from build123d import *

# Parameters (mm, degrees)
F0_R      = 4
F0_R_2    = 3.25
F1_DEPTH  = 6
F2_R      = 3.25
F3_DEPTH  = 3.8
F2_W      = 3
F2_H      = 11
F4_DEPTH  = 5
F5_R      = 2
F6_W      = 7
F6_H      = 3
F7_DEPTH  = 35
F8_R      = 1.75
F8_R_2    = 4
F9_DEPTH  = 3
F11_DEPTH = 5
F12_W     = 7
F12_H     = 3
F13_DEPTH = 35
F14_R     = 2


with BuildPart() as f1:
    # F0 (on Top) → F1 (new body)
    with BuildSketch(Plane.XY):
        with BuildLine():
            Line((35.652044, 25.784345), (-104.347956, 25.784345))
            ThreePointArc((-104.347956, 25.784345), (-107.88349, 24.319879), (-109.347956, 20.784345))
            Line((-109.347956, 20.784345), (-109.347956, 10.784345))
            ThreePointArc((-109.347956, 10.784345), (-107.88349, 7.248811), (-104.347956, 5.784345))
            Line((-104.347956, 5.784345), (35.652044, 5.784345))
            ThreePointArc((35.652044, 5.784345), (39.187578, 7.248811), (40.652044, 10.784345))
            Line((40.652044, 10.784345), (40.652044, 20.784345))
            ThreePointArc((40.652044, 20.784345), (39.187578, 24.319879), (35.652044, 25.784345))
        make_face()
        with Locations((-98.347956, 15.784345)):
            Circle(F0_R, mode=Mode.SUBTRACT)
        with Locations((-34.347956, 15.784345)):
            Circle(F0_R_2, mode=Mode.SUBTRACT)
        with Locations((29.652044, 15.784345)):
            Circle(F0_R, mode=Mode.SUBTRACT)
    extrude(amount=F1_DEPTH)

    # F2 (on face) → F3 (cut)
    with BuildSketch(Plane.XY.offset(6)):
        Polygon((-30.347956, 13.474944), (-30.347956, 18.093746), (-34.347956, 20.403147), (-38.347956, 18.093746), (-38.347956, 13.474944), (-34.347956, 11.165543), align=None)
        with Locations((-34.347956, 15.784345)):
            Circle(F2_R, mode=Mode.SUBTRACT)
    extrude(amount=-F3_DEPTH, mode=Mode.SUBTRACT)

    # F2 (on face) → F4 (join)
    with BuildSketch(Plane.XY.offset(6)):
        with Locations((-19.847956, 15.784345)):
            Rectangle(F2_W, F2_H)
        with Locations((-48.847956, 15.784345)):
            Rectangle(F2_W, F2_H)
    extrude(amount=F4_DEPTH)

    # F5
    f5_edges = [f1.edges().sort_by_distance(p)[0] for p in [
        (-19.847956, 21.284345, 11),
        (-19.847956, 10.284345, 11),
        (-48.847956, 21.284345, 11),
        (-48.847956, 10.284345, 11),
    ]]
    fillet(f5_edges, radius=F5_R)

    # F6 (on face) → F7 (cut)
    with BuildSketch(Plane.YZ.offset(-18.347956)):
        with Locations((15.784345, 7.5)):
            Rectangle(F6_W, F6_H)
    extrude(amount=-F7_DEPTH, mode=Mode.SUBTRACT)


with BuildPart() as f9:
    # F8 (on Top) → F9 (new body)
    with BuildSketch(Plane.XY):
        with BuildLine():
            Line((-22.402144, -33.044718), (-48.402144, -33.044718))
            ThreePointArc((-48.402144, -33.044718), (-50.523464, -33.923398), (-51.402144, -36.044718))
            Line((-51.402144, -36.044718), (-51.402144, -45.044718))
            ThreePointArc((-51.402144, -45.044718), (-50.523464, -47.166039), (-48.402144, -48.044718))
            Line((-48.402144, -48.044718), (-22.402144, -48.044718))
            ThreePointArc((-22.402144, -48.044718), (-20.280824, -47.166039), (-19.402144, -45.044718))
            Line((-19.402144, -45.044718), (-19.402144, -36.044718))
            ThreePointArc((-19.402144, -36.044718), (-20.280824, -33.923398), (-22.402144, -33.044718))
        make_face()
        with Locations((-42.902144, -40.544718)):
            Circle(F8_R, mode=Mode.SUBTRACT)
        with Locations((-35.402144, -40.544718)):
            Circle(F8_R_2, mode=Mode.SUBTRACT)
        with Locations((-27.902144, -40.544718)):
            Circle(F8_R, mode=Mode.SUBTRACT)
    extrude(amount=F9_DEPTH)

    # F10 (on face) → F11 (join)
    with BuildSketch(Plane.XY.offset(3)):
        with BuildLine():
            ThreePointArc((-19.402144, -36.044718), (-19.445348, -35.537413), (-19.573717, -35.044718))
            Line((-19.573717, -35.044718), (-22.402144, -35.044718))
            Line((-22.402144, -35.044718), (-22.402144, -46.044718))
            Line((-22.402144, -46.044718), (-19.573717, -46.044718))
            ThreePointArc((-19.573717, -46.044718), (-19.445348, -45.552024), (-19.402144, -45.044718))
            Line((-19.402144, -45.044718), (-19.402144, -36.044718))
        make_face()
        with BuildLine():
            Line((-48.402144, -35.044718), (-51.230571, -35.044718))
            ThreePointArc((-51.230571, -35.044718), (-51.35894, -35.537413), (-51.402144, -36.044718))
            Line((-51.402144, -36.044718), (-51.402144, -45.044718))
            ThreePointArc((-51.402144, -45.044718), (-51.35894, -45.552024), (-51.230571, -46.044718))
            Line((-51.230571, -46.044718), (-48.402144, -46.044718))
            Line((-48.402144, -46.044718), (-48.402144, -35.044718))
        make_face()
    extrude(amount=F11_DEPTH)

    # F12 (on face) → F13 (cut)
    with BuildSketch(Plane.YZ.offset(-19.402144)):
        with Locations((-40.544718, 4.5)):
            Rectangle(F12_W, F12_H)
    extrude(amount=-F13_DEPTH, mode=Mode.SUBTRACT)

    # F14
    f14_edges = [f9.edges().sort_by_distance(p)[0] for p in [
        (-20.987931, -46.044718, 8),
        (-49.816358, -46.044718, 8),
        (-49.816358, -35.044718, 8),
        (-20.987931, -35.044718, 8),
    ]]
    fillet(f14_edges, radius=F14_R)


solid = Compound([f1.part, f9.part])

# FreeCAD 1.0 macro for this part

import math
import FreeCAD as App
import Part
import Sketcher
Q = App.Units.Quantity


def edges_at(feature, points):
    """Names of the edges that pass closest to the given points."""
    edges = feature.Shape.Edges
    near = lambda p: min(range(len(edges)), key=lambda i: edges[i].distToShape(Part.Vertex(*p))[0])
    return sorted({f"Edge{near(p) + 1}" for p in points})

doc = App.newDocument("Part")
body = doc.addObject("PartDesign::Body", "Body")

sketch1 = body.newObject("Sketcher::SketchObject", "Sketch")
sketch1.AttachmentSupport = (doc.getObject("XY_Plane"), [""])
sketch1.MapMode = "FlatFace"
sketch1.addGeometry(Part.LineSegment(App.Vector(35.7, 25.8, 0), App.Vector(-104.3, 25.8, 0)), False)
sketch1.addGeometry(Part.ArcOfCircle(Part.Circle(App.Vector(-104.3, 20.8, 0), App.Vector(0, 0, 1), 5), math.radians(90), math.radians(180)), False)
sketch1.addGeometry(Part.LineSegment(App.Vector(-109.3, 20.8, 0), App.Vector(-109.3, 10.8, 0)), False)
sketch1.addGeometry(Part.ArcOfCircle(Part.Circle(App.Vector(-104.3, 10.8, 0), App.Vector(0, 0, 1), 5), math.radians(180), math.radians(270)), False)
sketch1.addGeometry(Part.LineSegment(App.Vector(-104.3, 5.8, 0), App.Vector(35.7, 5.8, 0)), False)
sketch1.addGeometry(Part.ArcOfCircle(Part.Circle(App.Vector(35.7, 10.8, 0), App.Vector(0, 0, 1), 5), math.radians(-90), math.radians(0)), False)
sketch1.addGeometry(Part.LineSegment(App.Vector(40.7, 10.8, 0), App.Vector(40.7, 20.8, 0)), False)
sketch1.addGeometry(Part.ArcOfCircle(Part.Circle(App.Vector(35.7, 20.8, 0), App.Vector(0, 0, 1), 5), math.radians(0), math.radians(90)), False)
sketch1.addGeometry(Part.Circle(App.Vector(-98.3, 15.8, 0), App.Vector(0, 0, 1), 4), False)
sketch1.addGeometry(Part.Circle(App.Vector(-34.3, 15.8, 0), App.Vector(0, 0, 1), 3.2), False)
sketch1.addGeometry(Part.Circle(App.Vector(29.7, 15.8, 0), App.Vector(0, 0, 1), 4), False)
sketch1.addConstraint(Sketcher.Constraint("Tangent", 0, 2, 1, 1))
sketch1.addConstraint(Sketcher.Constraint("Tangent", 1, 2, 2, 1))
sketch1.addConstraint(Sketcher.Constraint("Tangent", 2, 2, 3, 1))
sketch1.addConstraint(Sketcher.Constraint("Tangent", 3, 2, 4, 1))
sketch1.addConstraint(Sketcher.Constraint("Tangent", 4, 2, 5, 1))
sketch1.addConstraint(Sketcher.Constraint("Tangent", 5, 2, 6, 1))
sketch1.addConstraint(Sketcher.Constraint("Tangent", 6, 2, 7, 1))
sketch1.addConstraint(Sketcher.Constraint("Tangent", 7, 2, 0, 1))
sketch1.addConstraint(Sketcher.Constraint("Horizontal", 0))
sketch1.addConstraint(Sketcher.Constraint("Vertical", 2))
sketch1.addConstraint(Sketcher.Constraint("Horizontal", 4))
sketch1.addConstraint(Sketcher.Constraint("Vertical", 6))
sketch1.addConstraint(Sketcher.Constraint("Equal", 1, 3))
sketch1.addConstraint(Sketcher.Constraint("Equal", 3, 5))
sketch1.addConstraint(Sketcher.Constraint("Equal", 5, 7))
sketch1.addConstraint(Sketcher.Constraint("Equal", 8, 10))
sketch1.addConstraint(Sketcher.Constraint("Horizontal", 8, 3, 9, 3))
sketch1.addConstraint(Sketcher.Constraint("Horizontal", 9, 3, 10, 3))
sketch1.addConstraint(Sketcher.Constraint("Diameter", 8, 8.0))
sketch1.addConstraint(Sketcher.Constraint("Radius", 1, 5.0))
sketch1.addConstraint(Sketcher.Constraint("Diameter", 9, 6.5))
sketch1.addConstraint(Sketcher.Constraint("DistanceX", 0, 2, 0, 1, 140.0))
sketch1.addConstraint(Sketcher.Constraint("DistanceY", 2, 2, 2, 1, 10.0))
sketch1.addConstraint(Sketcher.Constraint("DistanceX", 1, 3, 8, 3, 6.0))
sketch1.addConstraint(Sketcher.Constraint("DistanceY", 8, 3, 1, 3, 5.0))
sketch1.addConstraint(Sketcher.Constraint("DistanceX", 8, 3, 9, 3, 64.0))
sketch1.addConstraint(Sketcher.Constraint("DistanceX", 10, 3, 5, 3, 6.0))
sketch1.addConstraint(Sketcher.Constraint("DistanceX", 1, 3, -1, 1, 104.347956))
sketch1.addConstraint(Sketcher.Constraint("DistanceY", -1, 1, 1, 3, 20.784345))
pad1 = body.newObject("PartDesign::Pad", "Pad")
pad1.Profile = sketch1
pad1.Length = 6

sketch2 = body.newObject("Sketcher::SketchObject", "Sketch001")
sketch2.AttachmentSupport = (doc.getObject("XY_Plane"), [""])
sketch2.MapMode = "FlatFace"
sketch2.AttachmentOffset = App.Placement(App.Vector(0, 0, 6), App.Rotation())
sketch2.addGeometry(Part.LineSegment(App.Vector(-30.3, 13.5, 0), App.Vector(-30.3, 18.1, 0)), False)
sketch2.addGeometry(Part.LineSegment(App.Vector(-30.3, 18.1, 0), App.Vector(-34.3, 20.4, 0)), False)
sketch2.addGeometry(Part.LineSegment(App.Vector(-34.3, 20.4, 0), App.Vector(-38.3, 18.1, 0)), False)
sketch2.addGeometry(Part.LineSegment(App.Vector(-38.3, 18.1, 0), App.Vector(-38.3, 13.5, 0)), False)
sketch2.addGeometry(Part.LineSegment(App.Vector(-38.3, 13.5, 0), App.Vector(-34.3, 11.2, 0)), False)
sketch2.addGeometry(Part.LineSegment(App.Vector(-34.3, 11.2, 0), App.Vector(-30.3, 13.5, 0)), False)
sketch2.addGeometry(Part.Circle(App.Vector(-34.3, 15.8, 0), App.Vector(0, 0, 1), 3.2), False)
sketch2.addConstraint(Sketcher.Constraint("Coincident", 0, 2, 1, 1))
sketch2.addConstraint(Sketcher.Constraint("Coincident", 1, 2, 2, 1))
sketch2.addConstraint(Sketcher.Constraint("Coincident", 2, 2, 3, 1))
sketch2.addConstraint(Sketcher.Constraint("Coincident", 3, 2, 4, 1))
sketch2.addConstraint(Sketcher.Constraint("Coincident", 4, 2, 5, 1))
sketch2.addConstraint(Sketcher.Constraint("Coincident", 5, 2, 0, 1))
sketch2.addConstraint(Sketcher.Constraint("Vertical", 0))
sketch2.addConstraint(Sketcher.Constraint("Vertical", 3))
sketch2.addConstraint(Sketcher.Constraint("Parallel", 1, 4))
sketch2.addConstraint(Sketcher.Constraint("Parallel", 2, 5))
sketch2.addConstraint(Sketcher.Constraint("Horizontal", 0, 2, 2, 2))
sketch2.addConstraint(Sketcher.Constraint("Horizontal", 3, 2, 5, 2))
sketch2.addConstraint(Sketcher.Constraint("Vertical", 6, 3, 1, 2))
sketch2.addConstraint(Sketcher.Constraint("Vertical", 1, 2, 4, 2))
sketch2.addConstraint(Sketcher.Constraint("Diameter", 6, 6.5))
sketch2.addConstraint(Sketcher.Constraint("Angle", 1, Q("150.000001 deg")))
sketch2.addConstraint(Sketcher.Constraint("DistanceX", 6, 3, 0, 2, 4.0))
sketch2.addConstraint(Sketcher.Constraint("DistanceY", 0, 1, 0, 2, 4.618802))
sketch2.addConstraint(Sketcher.Constraint("DistanceY", 6, 3, 0, 2, 2.309401))
sketch2.addConstraint(Sketcher.Constraint("DistanceX", 6, 3, -1, 1, 34.347956))
sketch2.addConstraint(Sketcher.Constraint("DistanceY", -1, 1, 6, 3, 15.784345))
pocket1 = body.newObject("PartDesign::Pocket", "Pocket")
pocket1.Profile = sketch2
pocket1.Length = 3.8

sketch3 = body.newObject("Sketcher::SketchObject", "Sketch002")
sketch3.AttachmentSupport = (doc.getObject("XY_Plane"), [""])
sketch3.MapMode = "FlatFace"
sketch3.AttachmentOffset = App.Placement(App.Vector(0, 0, 6), App.Rotation())
sketch3.addGeometry(Part.LineSegment(App.Vector(-21.3, 21.3, 0), App.Vector(-21.3, 10.3, 0)), False)
sketch3.addGeometry(Part.LineSegment(App.Vector(-21.3, 10.3, 0), App.Vector(-18.3, 10.3, 0)), False)
sketch3.addGeometry(Part.LineSegment(App.Vector(-18.3, 10.3, 0), App.Vector(-18.3, 21.3, 0)), False)
sketch3.addGeometry(Part.LineSegment(App.Vector(-18.3, 21.3, 0), App.Vector(-21.3, 21.3, 0)), False)
sketch3.addGeometry(Part.LineSegment(App.Vector(-50.3, 21.3, 0), App.Vector(-50.3, 10.3, 0)), False)
sketch3.addGeometry(Part.LineSegment(App.Vector(-50.3, 10.3, 0), App.Vector(-47.3, 10.3, 0)), False)
sketch3.addGeometry(Part.LineSegment(App.Vector(-47.3, 10.3, 0), App.Vector(-47.3, 21.3, 0)), False)
sketch3.addGeometry(Part.LineSegment(App.Vector(-47.3, 21.3, 0), App.Vector(-50.3, 21.3, 0)), False)
sketch3.addConstraint(Sketcher.Constraint("Coincident", 0, 2, 1, 1))
sketch3.addConstraint(Sketcher.Constraint("Coincident", 1, 2, 2, 1))
sketch3.addConstraint(Sketcher.Constraint("Coincident", 2, 2, 3, 1))
sketch3.addConstraint(Sketcher.Constraint("Coincident", 3, 2, 0, 1))
sketch3.addConstraint(Sketcher.Constraint("Coincident", 4, 2, 5, 1))
sketch3.addConstraint(Sketcher.Constraint("Coincident", 5, 2, 6, 1))
sketch3.addConstraint(Sketcher.Constraint("Coincident", 6, 2, 7, 1))
sketch3.addConstraint(Sketcher.Constraint("Coincident", 7, 2, 4, 1))
sketch3.addConstraint(Sketcher.Constraint("Vertical", 0))
sketch3.addConstraint(Sketcher.Constraint("Horizontal", 1))
sketch3.addConstraint(Sketcher.Constraint("Vertical", 2))
sketch3.addConstraint(Sketcher.Constraint("Horizontal", 3))
sketch3.addConstraint(Sketcher.Constraint("Vertical", 4))
sketch3.addConstraint(Sketcher.Constraint("Horizontal", 5))
sketch3.addConstraint(Sketcher.Constraint("Vertical", 6))
sketch3.addConstraint(Sketcher.Constraint("Horizontal", 7))
sketch3.addConstraint(Sketcher.Constraint("Horizontal", 1, 2, 4, 2))
sketch3.addConstraint(Sketcher.Constraint("Horizontal", 3, 2, 6, 2))
sketch3.addConstraint(Sketcher.Constraint("Equal", 3, 5))
sketch3.addConstraint(Sketcher.Constraint("DistanceX", 1, 1, 1, 2, 3.0))
sketch3.addConstraint(Sketcher.Constraint("DistanceY", 0, 2, 0, 1, 11.0))
sketch3.addConstraint(Sketcher.Constraint("DistanceX", 4, 2, 0, 2, 29.0))
sketch3.addConstraint(Sketcher.Constraint("DistanceX", 0, 2, -1, 1, 21.347956))
sketch3.addConstraint(Sketcher.Constraint("DistanceY", -1, 1, 0, 2, 10.284345))
pad2 = body.newObject("PartDesign::Pad", "Pad001")
pad2.Profile = sketch3
pad2.Length = 5
doc.recompute()

fillet = body.newObject("PartDesign::Fillet", "Fillet")
fillet.Base = (pad2, edges_at(pad2, [
    (-19.848, 21.284, 11),
    (-19.848, 10.284, 11),
    (-48.848, 21.284, 11),
    (-48.848, 10.284, 11),
]))
fillet.Radius = 2

sketch4 = body.newObject("Sketcher::SketchObject", "Sketch003")
sketch4.AttachmentSupport = (doc.getObject("YZ_Plane"), [""])
sketch4.MapMode = "FlatFace"
sketch4.AttachmentOffset = App.Placement(App.Vector(0, 0, -18.347956), App.Rotation())
sketch4.addGeometry(Part.LineSegment(App.Vector(12.3, 9, 0), App.Vector(12.3, 6, 0)), False)
sketch4.addGeometry(Part.LineSegment(App.Vector(12.3, 6, 0), App.Vector(19.3, 6, 0)), False)
sketch4.addGeometry(Part.LineSegment(App.Vector(19.3, 6, 0), App.Vector(19.3, 9, 0)), False)
sketch4.addGeometry(Part.LineSegment(App.Vector(19.3, 9, 0), App.Vector(12.3, 9, 0)), False)
sketch4.addConstraint(Sketcher.Constraint("Coincident", 0, 2, 1, 1))
sketch4.addConstraint(Sketcher.Constraint("Coincident", 1, 2, 2, 1))
sketch4.addConstraint(Sketcher.Constraint("Coincident", 2, 2, 3, 1))
sketch4.addConstraint(Sketcher.Constraint("Coincident", 3, 2, 0, 1))
sketch4.addConstraint(Sketcher.Constraint("Vertical", 0))
sketch4.addConstraint(Sketcher.Constraint("Horizontal", 1))
sketch4.addConstraint(Sketcher.Constraint("Vertical", 2))
sketch4.addConstraint(Sketcher.Constraint("Horizontal", 3))
sketch4.addConstraint(Sketcher.Constraint("DistanceX", 1, 1, 1, 2, 7.0))
sketch4.addConstraint(Sketcher.Constraint("DistanceY", 0, 2, 0, 1, 3.0))
sketch4.addConstraint(Sketcher.Constraint("DistanceY", -1, 1, 0, 2, 6.0))
sketch4.addConstraint(Sketcher.Constraint("DistanceX", -1, 1, 0, 2, 12.284345))
pocket2 = body.newObject("PartDesign::Pocket", "Pocket001")
pocket2.Profile = sketch4
pocket2.Length = 35
body2 = doc.addObject("PartDesign::Body", "Body001")

sketch5 = body2.newObject("Sketcher::SketchObject", "Sketch004")
sketch5.AttachmentSupport = (doc.getObject("XY_Plane001"), [""])
sketch5.MapMode = "FlatFace"
sketch5.addGeometry(Part.LineSegment(App.Vector(-22.4, -33, 0), App.Vector(-48.4, -33, 0)), False)
sketch5.addGeometry(Part.ArcOfCircle(Part.Circle(App.Vector(-48.4, -36, 0), App.Vector(0, 0, 1), 3), math.radians(90), math.radians(180)), False)
sketch5.addGeometry(Part.LineSegment(App.Vector(-51.4, -36, 0), App.Vector(-51.4, -45, 0)), False)
sketch5.addGeometry(Part.ArcOfCircle(Part.Circle(App.Vector(-48.4, -45, 0), App.Vector(0, 0, 1), 3), math.radians(180), math.radians(270)), False)
sketch5.addGeometry(Part.LineSegment(App.Vector(-48.4, -48, 0), App.Vector(-22.4, -48, 0)), False)
sketch5.addGeometry(Part.ArcOfCircle(Part.Circle(App.Vector(-22.4, -45, 0), App.Vector(0, 0, 1), 3), math.radians(-90), math.radians(0)), False)
sketch5.addGeometry(Part.LineSegment(App.Vector(-19.4, -45, 0), App.Vector(-19.4, -36, 0)), False)
sketch5.addGeometry(Part.ArcOfCircle(Part.Circle(App.Vector(-22.4, -36, 0), App.Vector(0, 0, 1), 3), math.radians(0), math.radians(90)), False)
sketch5.addGeometry(Part.Circle(App.Vector(-42.9, -40.5, 0), App.Vector(0, 0, 1), 1.8), False)
sketch5.addGeometry(Part.Circle(App.Vector(-35.4, -40.5, 0), App.Vector(0, 0, 1), 4), False)
sketch5.addGeometry(Part.Circle(App.Vector(-27.9, -40.5, 0), App.Vector(0, 0, 1), 1.8), False)
sketch5.addConstraint(Sketcher.Constraint("Tangent", 0, 2, 1, 1))
sketch5.addConstraint(Sketcher.Constraint("Tangent", 1, 2, 2, 1))
sketch5.addConstraint(Sketcher.Constraint("Tangent", 2, 2, 3, 1))
sketch5.addConstraint(Sketcher.Constraint("Tangent", 3, 2, 4, 1))
sketch5.addConstraint(Sketcher.Constraint("Tangent", 4, 2, 5, 1))
sketch5.addConstraint(Sketcher.Constraint("Tangent", 5, 2, 6, 1))
sketch5.addConstraint(Sketcher.Constraint("Tangent", 6, 2, 7, 1))
sketch5.addConstraint(Sketcher.Constraint("Tangent", 7, 2, 0, 1))
sketch5.addConstraint(Sketcher.Constraint("Horizontal", 0))
sketch5.addConstraint(Sketcher.Constraint("Vertical", 2))
sketch5.addConstraint(Sketcher.Constraint("Horizontal", 4))
sketch5.addConstraint(Sketcher.Constraint("Vertical", 6))
sketch5.addConstraint(Sketcher.Constraint("Equal", 1, 3))
sketch5.addConstraint(Sketcher.Constraint("Equal", 3, 5))
sketch5.addConstraint(Sketcher.Constraint("Equal", 5, 7))
sketch5.addConstraint(Sketcher.Constraint("Equal", 8, 10))
sketch5.addConstraint(Sketcher.Constraint("Horizontal", 8, 3, 9, 3))
sketch5.addConstraint(Sketcher.Constraint("Horizontal", 9, 3, 10, 3))
sketch5.addConstraint(Sketcher.Constraint("Diameter", 9, 8.0))
sketch5.addConstraint(Sketcher.Constraint("Radius", 1, 3.000001))
sketch5.addConstraint(Sketcher.Constraint("Diameter", 8, 3.5))
sketch5.addConstraint(Sketcher.Constraint("DistanceX", 0, 2, 0, 1, 26.0))
sketch5.addConstraint(Sketcher.Constraint("DistanceY", 2, 2, 2, 1, 9.0))
sketch5.addConstraint(Sketcher.Constraint("DistanceX", 1, 3, 9, 3, 12.999999))
sketch5.addConstraint(Sketcher.Constraint("DistanceX", 8, 3, 10, 3, 15.0))
sketch5.addConstraint(Sketcher.Constraint("DistanceX", 1, 3, 8, 3, 5.499999))
sketch5.addConstraint(Sketcher.Constraint("DistanceY", 8, 3, 1, 3, 4.499999))
sketch5.addConstraint(Sketcher.Constraint("DistanceY", 1, 3, -1, 1, 36.044719))
sketch5.addConstraint(Sketcher.Constraint("DistanceX", 1, 3, -1, 1, 48.402143))
pad3 = body2.newObject("PartDesign::Pad", "Pad002")
pad3.Profile = sketch5
pad3.Length = 3

sketch6 = body2.newObject("Sketcher::SketchObject", "Sketch005")
sketch6.AttachmentSupport = (doc.getObject("XY_Plane001"), [""])
sketch6.MapMode = "FlatFace"
sketch6.AttachmentOffset = App.Placement(App.Vector(0, 0, 3), App.Rotation())
sketch6.addGeometry(Part.ArcOfCircle(Part.Circle(App.Vector(-22.4, -36, 0), App.Vector(0, 0, 1), 3), math.radians(0), math.radians(19.47)), False)
sketch6.addGeometry(Part.LineSegment(App.Vector(-19.6, -35, 0), App.Vector(-22.4, -35, 0)), False)
sketch6.addGeometry(Part.LineSegment(App.Vector(-22.4, -35, 0), App.Vector(-22.4, -46, 0)), False)
sketch6.addGeometry(Part.LineSegment(App.Vector(-22.4, -46, 0), App.Vector(-19.6, -46, 0)), False)
sketch6.addGeometry(Part.ArcOfCircle(Part.Circle(App.Vector(-22.4, -45, 0), App.Vector(0, 0, 1), 3), math.radians(-19.47), math.radians(0)), False)
sketch6.addGeometry(Part.LineSegment(App.Vector(-19.4, -45, 0), App.Vector(-19.4, -36, 0)), False)
sketch6.addGeometry(Part.LineSegment(App.Vector(-48.4, -35, 0), App.Vector(-51.2, -35, 0)), False)
sketch6.addGeometry(Part.ArcOfCircle(Part.Circle(App.Vector(-48.4, -36, 0), App.Vector(0, 0, 1), 3), math.radians(160.53), math.radians(180)), False)
sketch6.addGeometry(Part.LineSegment(App.Vector(-51.4, -36, 0), App.Vector(-51.4, -45, 0)), False)
sketch6.addGeometry(Part.ArcOfCircle(Part.Circle(App.Vector(-48.4, -45, 0), App.Vector(0, 0, 1), 3), math.radians(180), math.radians(199.47)), False)
sketch6.addGeometry(Part.LineSegment(App.Vector(-51.2, -46, 0), App.Vector(-48.4, -46, 0)), False)
sketch6.addGeometry(Part.LineSegment(App.Vector(-48.4, -46, 0), App.Vector(-48.4, -35, 0)), False)
sketch6.addConstraint(Sketcher.Constraint("Coincident", 0, 2, 1, 1))
sketch6.addConstraint(Sketcher.Constraint("Coincident", 1, 2, 2, 1))
sketch6.addConstraint(Sketcher.Constraint("Coincident", 2, 2, 3, 1))
sketch6.addConstraint(Sketcher.Constraint("Coincident", 3, 2, 4, 1))
sketch6.addConstraint(Sketcher.Constraint("Tangent", 4, 2, 5, 1))
sketch6.addConstraint(Sketcher.Constraint("Tangent", 5, 2, 0, 1))
sketch6.addConstraint(Sketcher.Constraint("Coincident", 6, 2, 7, 1))
sketch6.addConstraint(Sketcher.Constraint("Tangent", 7, 2, 8, 1))
sketch6.addConstraint(Sketcher.Constraint("Tangent", 8, 2, 9, 1))
sketch6.addConstraint(Sketcher.Constraint("Coincident", 9, 2, 10, 1))
sketch6.addConstraint(Sketcher.Constraint("Coincident", 10, 2, 11, 1))
sketch6.addConstraint(Sketcher.Constraint("Coincident", 11, 2, 6, 1))
sketch6.addConstraint(Sketcher.Constraint("Horizontal", 1))
sketch6.addConstraint(Sketcher.Constraint("Vertical", 2))
sketch6.addConstraint(Sketcher.Constraint("Horizontal", 3))
sketch6.addConstraint(Sketcher.Constraint("Vertical", 5))
sketch6.addConstraint(Sketcher.Constraint("Horizontal", 6))
sketch6.addConstraint(Sketcher.Constraint("Vertical", 8))
sketch6.addConstraint(Sketcher.Constraint("Horizontal", 10))
sketch6.addConstraint(Sketcher.Constraint("Vertical", 11))
sketch6.addConstraint(Sketcher.Constraint("Equal", 0, 7))
sketch6.addConstraint(Sketcher.Constraint("Equal", 4, 9))
sketch6.addConstraint(Sketcher.Constraint("Horizontal", 0, 3, 7, 3))
sketch6.addConstraint(Sketcher.Constraint("Horizontal", 4, 3, 9, 3))
sketch6.addConstraint(Sketcher.Constraint("Horizontal", 1, 2, 6, 2))
sketch6.addConstraint(Sketcher.Constraint("Horizontal", 3, 2, 9, 2))
sketch6.addConstraint(Sketcher.Constraint("Vertical", 0, 2, 3, 2))
sketch6.addConstraint(Sketcher.Constraint("Equal", 3, 6))
sketch6.addConstraint(Sketcher.Constraint("DistanceY", 2, 2, 2, 1, 11.0))
sketch6.addConstraint(Sketcher.Constraint("DistanceY", 5, 1, 5, 2, 9.0))
sketch6.addConstraint(Sketcher.Constraint("DistanceY", 3, 2, 4, 2, 1.0))
sketch6.addConstraint(Sketcher.Constraint("DistanceX", 2, 2, 4, 2, 3.0))
sketch6.addConstraint(Sketcher.Constraint("DistanceX", 7, 2, 1, 2, 29.0))
sketch6.addConstraint(Sketcher.Constraint("Radius", 0, 2.999985))
sketch6.addConstraint(Sketcher.Constraint("DistanceX", 0, 3, -1, 1, 22.402129))
sketch6.addConstraint(Sketcher.Constraint("DistanceY", 0, 2, -1, 1, 35.044718))
pad4 = body2.newObject("PartDesign::Pad", "Pad003")
pad4.Profile = sketch6
pad4.Length = 5

sketch7 = body2.newObject("Sketcher::SketchObject", "Sketch006")
sketch7.AttachmentSupport = (doc.getObject("YZ_Plane001"), [""])
sketch7.MapMode = "FlatFace"
sketch7.AttachmentOffset = App.Placement(App.Vector(0, 0, -19.402144), App.Rotation())
sketch7.addGeometry(Part.LineSegment(App.Vector(-44, 6, 0), App.Vector(-44, 3, 0)), False)
sketch7.addGeometry(Part.LineSegment(App.Vector(-44, 3, 0), App.Vector(-37, 3, 0)), False)
sketch7.addGeometry(Part.LineSegment(App.Vector(-37, 3, 0), App.Vector(-37, 6, 0)), False)
sketch7.addGeometry(Part.LineSegment(App.Vector(-37, 6, 0), App.Vector(-44, 6, 0)), False)
sketch7.addConstraint(Sketcher.Constraint("Coincident", 0, 2, 1, 1))
sketch7.addConstraint(Sketcher.Constraint("Coincident", 1, 2, 2, 1))
sketch7.addConstraint(Sketcher.Constraint("Coincident", 2, 2, 3, 1))
sketch7.addConstraint(Sketcher.Constraint("Coincident", 3, 2, 0, 1))
sketch7.addConstraint(Sketcher.Constraint("Vertical", 0))
sketch7.addConstraint(Sketcher.Constraint("Horizontal", 1))
sketch7.addConstraint(Sketcher.Constraint("Vertical", 2))
sketch7.addConstraint(Sketcher.Constraint("Horizontal", 3))
sketch7.addConstraint(Sketcher.Constraint("DistanceX", 1, 1, 1, 2, 7.0))
sketch7.addConstraint(Sketcher.Constraint("DistanceY", 0, 2, 0, 1, 3.0))
sketch7.addConstraint(Sketcher.Constraint("DistanceY", -1, 1, 0, 2, 3.0))
sketch7.addConstraint(Sketcher.Constraint("DistanceX", 0, 2, -1, 1, 44.044718))
pocket3 = body2.newObject("PartDesign::Pocket", "Pocket002")
pocket3.Profile = sketch7
pocket3.Length = 35
doc.recompute()

fillet2 = body2.newObject("PartDesign::Fillet", "Fillet001")
fillet2.Base = (pocket3, edges_at(pocket3, [
    (-20.988, -46.045, 8),
    (-49.816, -46.045, 8),
    (-49.816, -35.045, 8),
    (-20.988, -35.045, 8),
]))
fillet2.Radius = 2

doc.recompute()
